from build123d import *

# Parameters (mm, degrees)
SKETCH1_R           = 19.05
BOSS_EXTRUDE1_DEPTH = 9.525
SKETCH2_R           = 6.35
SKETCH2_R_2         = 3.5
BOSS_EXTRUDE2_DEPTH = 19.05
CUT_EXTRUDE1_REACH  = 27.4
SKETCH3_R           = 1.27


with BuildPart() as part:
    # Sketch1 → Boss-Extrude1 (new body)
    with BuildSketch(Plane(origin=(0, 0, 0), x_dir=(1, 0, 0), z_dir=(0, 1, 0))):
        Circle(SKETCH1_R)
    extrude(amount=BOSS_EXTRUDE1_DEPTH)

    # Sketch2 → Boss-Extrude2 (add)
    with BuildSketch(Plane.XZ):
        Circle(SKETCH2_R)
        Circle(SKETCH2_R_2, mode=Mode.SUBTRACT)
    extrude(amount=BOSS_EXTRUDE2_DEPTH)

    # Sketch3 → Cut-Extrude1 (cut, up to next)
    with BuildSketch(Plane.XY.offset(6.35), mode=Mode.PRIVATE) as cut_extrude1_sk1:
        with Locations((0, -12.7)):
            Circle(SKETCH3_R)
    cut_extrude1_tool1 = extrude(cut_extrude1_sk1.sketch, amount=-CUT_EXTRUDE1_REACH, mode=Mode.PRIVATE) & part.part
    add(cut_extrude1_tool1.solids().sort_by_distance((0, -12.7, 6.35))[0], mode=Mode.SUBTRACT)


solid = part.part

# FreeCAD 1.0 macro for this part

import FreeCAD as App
import Part
import Sketcher

V = App.Vector
Q = App.Units.Quantity

doc = App.newDocument("Part")
params = doc.addObject("Spreadsheet::Sheet", "Params")
for row, (alias, value) in enumerate([
    ("sketch1_diameter", "1.5 in"),
    ("pad1_length", "0.375 in"),
    ("sketch2_diameter", "0.5 in"),
    ("pad2_length", "0.75 in"),
    ("sketch3_diameter", "0.1 in"),
], start=1):
    params.set(f"A{row}", alias)
    params.set(f"B{row}", "=" + value)
    params.setAlias(f"B{row}", alias)

body = doc.addObject("PartDesign::Body", "Body")

# Sketch on XZ plane
sketch1 = doc.addObject("Sketcher::SketchObject", "Sketch")
body.addObject(sketch1)
sketch1.AttachmentSupport = (doc.XZ_Plane, [""])
sketch1.MapMode = "FlatFace"
sketch1.addGeometry(Part.Circle(V(0, 0, 0), V(0, 0, 1), 19), False)
sketch1.addConstraint(Sketcher.Constraint("Coincident", 0, 3, -1, 1))
sketch1.addConstraint(Sketcher.Constraint("Diameter", 0, Q("1.5 in")))
sketch1.setExpression("Constraints[1]", "Params.sketch1_diameter")
pad1 = doc.addObject("PartDesign::Pad", "Pad")
body.addObject(pad1)
pad1.Profile = sketch1
pad1.setExpression("Length", "Params.pad1_length")
pad1.Reversed = True

# Sketch on XZ plane
sketch2 = doc.addObject("Sketcher::SketchObject", "Sketch001")
body.addObject(sketch2)
sketch2.AttachmentSupport = (doc.XZ_Plane, [""])
sketch2.MapMode = "FlatFace"
sketch2.addGeometry(Part.Circle(V(0, 0, 0), V(0, 0, 1), 6.3), False)
sketch2.addGeometry(Part.Circle(V(0, 0, 0), V(0, 0, 1), 3.5), False)
sketch2.addConstraint(Sketcher.Constraint("Coincident", 0, 3, -1, 1))
sketch2.addConstraint(Sketcher.Constraint("Coincident", 1, 3, -1, 1))
sketch2.addConstraint(Sketcher.Constraint("Diameter", 0, Q("0.5 in")))
sketch2.addConstraint(Sketcher.Constraint("Diameter", 1, 7.0))
sketch2.setExpression("Constraints[2]", "Params.sketch2_diameter")
pad2 = doc.addObject("PartDesign::Pad", "Pad001")
body.addObject(pad2)
pad2.Profile = sketch2
pad2.setExpression("Length", "Params.pad2_length")

# Sketch on XY plane
sketch3 = doc.addObject("Sketcher::SketchObject", "Sketch002")
body.addObject(sketch3)
sketch3.AttachmentSupport = (doc.XY_Plane, [""])
sketch3.MapMode = "FlatFace"
sketch3.AttachmentOffset = App.Placement(V(0, 0, 0.25 * 25.4), App.Rotation())
sketch3.addGeometry(Part.Circle(V(0, -12.7, 0), V(0, 0, 1), 1.3), False)
sketch3.addConstraint(Sketcher.Constraint("PointOnObject", 0, 3, -2))
sketch3.addConstraint(Sketcher.Constraint("Diameter", 0, Q("0.1 in")))
sketch3.addConstraint(Sketcher.Constraint("DistanceY", 0, 3, -1, 1, Q("0.5 in")))
sketch3.setExpression("Constraints[1]", "Params.sketch3_diameter")
pocket1 = doc.addObject("PartDesign::Pocket", "Pocket")
body.addObject(pocket1)
pocket1.Profile = sketch3
pocket1.Type = "UpToFirst"

doc.recompute()
